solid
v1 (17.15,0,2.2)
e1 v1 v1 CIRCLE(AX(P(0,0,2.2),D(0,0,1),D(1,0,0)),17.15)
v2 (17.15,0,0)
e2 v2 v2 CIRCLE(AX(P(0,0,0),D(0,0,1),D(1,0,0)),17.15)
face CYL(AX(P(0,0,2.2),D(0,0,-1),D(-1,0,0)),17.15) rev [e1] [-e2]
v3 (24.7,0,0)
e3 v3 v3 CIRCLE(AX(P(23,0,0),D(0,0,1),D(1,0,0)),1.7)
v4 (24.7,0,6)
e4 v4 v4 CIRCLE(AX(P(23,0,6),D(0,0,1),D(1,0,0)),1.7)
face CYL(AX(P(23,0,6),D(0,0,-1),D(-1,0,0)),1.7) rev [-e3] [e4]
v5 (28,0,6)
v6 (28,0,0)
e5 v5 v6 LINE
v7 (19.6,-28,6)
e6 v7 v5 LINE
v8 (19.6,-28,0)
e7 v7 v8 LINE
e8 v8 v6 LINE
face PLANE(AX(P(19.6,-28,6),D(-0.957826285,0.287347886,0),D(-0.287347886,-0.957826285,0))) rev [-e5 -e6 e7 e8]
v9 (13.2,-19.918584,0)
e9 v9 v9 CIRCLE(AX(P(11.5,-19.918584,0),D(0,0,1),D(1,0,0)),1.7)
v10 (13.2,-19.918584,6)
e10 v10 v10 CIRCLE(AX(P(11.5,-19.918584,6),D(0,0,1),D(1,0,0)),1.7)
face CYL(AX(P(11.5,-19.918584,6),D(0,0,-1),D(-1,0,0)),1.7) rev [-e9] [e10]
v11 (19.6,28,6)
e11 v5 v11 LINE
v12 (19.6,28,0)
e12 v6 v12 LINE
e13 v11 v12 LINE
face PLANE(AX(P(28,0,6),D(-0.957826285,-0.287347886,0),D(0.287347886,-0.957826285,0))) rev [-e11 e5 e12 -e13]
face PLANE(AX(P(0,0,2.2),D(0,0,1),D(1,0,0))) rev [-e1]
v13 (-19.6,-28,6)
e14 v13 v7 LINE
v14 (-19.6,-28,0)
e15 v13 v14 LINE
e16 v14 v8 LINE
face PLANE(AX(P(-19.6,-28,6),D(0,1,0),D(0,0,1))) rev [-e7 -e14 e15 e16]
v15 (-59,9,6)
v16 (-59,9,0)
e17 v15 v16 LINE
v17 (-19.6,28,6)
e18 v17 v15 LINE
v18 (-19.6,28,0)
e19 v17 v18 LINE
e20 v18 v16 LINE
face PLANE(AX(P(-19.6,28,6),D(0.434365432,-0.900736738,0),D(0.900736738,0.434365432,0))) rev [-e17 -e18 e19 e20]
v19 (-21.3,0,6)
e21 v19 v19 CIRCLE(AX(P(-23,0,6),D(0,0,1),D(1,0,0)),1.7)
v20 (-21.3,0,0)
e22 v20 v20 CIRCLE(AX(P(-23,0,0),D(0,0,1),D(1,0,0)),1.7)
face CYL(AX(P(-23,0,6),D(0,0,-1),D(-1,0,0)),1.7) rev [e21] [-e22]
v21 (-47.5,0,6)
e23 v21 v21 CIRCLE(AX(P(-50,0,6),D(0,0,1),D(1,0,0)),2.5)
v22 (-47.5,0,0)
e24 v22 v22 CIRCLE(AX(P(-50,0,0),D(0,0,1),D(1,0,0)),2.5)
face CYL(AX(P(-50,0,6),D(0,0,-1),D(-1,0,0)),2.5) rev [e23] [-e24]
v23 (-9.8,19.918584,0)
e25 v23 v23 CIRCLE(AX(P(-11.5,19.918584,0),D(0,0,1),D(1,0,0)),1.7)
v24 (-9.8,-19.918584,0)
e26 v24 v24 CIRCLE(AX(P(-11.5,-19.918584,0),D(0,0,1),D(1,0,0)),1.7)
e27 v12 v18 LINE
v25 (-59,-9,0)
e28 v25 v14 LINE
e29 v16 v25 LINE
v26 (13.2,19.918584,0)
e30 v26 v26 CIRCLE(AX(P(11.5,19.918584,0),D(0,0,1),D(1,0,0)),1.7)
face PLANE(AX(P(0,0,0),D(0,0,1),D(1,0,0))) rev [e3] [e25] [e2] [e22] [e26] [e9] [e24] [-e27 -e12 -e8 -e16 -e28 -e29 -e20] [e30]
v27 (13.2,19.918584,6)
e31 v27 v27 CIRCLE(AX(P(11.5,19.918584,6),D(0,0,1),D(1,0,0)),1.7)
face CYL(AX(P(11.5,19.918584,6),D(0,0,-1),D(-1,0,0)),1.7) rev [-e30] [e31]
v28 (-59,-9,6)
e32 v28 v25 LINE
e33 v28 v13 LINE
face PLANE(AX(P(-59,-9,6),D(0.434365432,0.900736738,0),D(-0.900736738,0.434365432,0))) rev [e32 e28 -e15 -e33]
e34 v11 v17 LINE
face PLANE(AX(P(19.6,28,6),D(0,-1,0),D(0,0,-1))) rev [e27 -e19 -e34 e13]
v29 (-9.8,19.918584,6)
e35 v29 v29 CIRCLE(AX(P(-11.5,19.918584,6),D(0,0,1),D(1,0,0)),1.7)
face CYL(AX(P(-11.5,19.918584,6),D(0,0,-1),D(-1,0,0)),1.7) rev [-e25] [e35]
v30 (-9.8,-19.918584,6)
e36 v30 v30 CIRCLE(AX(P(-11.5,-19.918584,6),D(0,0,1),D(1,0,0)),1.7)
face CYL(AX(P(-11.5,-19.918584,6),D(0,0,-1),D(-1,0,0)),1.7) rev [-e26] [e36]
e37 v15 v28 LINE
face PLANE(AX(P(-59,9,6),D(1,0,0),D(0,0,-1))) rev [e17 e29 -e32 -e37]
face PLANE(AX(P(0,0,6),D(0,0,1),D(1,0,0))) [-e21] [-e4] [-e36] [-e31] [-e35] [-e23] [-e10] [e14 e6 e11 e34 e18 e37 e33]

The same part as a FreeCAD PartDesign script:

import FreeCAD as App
import Part
import Sketcher
from FreeCAD import Vector
Q = App.Units.Quantity

doc = App.newDocument("Part")
body = doc.addObject("PartDesign::Body", "Body")

# Sketch on XY plane
sketch1 = body.newObject("Sketcher::SketchObject", "Sketch")
sketch1.AttachmentSupport = (doc.getObject("XY_Plane"), [""])
sketch1.MapMode = "FlatFace"
sketch1.addGeometry(Part.LineSegment(Vector(-59, -9, 0), Vector(-19.6, -28, 0)), False)
sketch1.addGeometry(Part.LineSegment(Vector(-19.6, -28, 0), Vector(19.6, -28, 0)), False)
sketch1.addGeometry(Part.LineSegment(Vector(19.6, -28, 0), Vector(28, 0, 0)), False)
sketch1.addGeometry(Part.LineSegment(Vector(28, 0, 0), Vector(19.6, 28, 0)), False)
sketch1.addGeometry(Part.LineSegment(Vector(19.6, 28, 0), Vector(-19.6, 28, 0)), False)
sketch1.addGeometry(Part.LineSegment(Vector(-19.6, 28, 0), Vector(-59, 9, 0)), False)
sketch1.addGeometry(Part.LineSegment(Vector(-59, 9, 0), Vector(-59, -9, 0)), False)
sketch1.addGeometry(Part.Circle(Vector(-11.5, -19.9, 0), Vector(0, 0, 1), 1.7), False)
sketch1.addGeometry(Part.Circle(Vector(11.5, -19.9, 0), Vector(0, 0, 1), 1.7), False)
sketch1.addGeometry(Part.Circle(Vector(-50, 0, 0), Vector(0, 0, 1), 2.5), False)
sketch1.addGeometry(Part.Circle(Vector(-23, 0, 0), Vector(0, 0, 1), 1.7), False)
sketch1.addGeometry(Part.Circle(Vector(23, 0, 0), Vector(0, 0, 1), 1.7), False)
sketch1.addGeometry(Part.Circle(Vector(-11.5, 19.9, 0), Vector(0, 0, 1), 1.7), False)
sketch1.addGeometry(Part.Circle(Vector(11.5, 19.9, 0), Vector(0, 0, 1), 1.7), False)
sketch1.addConstraint(Sketcher.Constraint("Coincident", 0, 2, 1, 1))
sketch1.addConstraint(Sketcher.Constraint("Coincident", 1, 2, 2, 1))
sketch1.addConstraint(Sketcher.Constraint("Coincident", 2, 2, 3, 1))
sketch1.addConstraint(Sketcher.Constraint("Coincident", 3, 2, 4, 1))
sketch1.addConstraint(Sketcher.Constraint("Coincident", 4, 2, 5, 1))
sketch1.addConstraint(Sketcher.Constraint("Coincident", 5, 2, 6, 1))
sketch1.addConstraint(Sketcher.Constraint("Coincident", 6, 2, 0, 1))
sketch1.addConstraint(Sketcher.Constraint("Horizontal", 1))
sketch1.addConstraint(Sketcher.Constraint("Horizontal", 4))
sketch1.addConstraint(Sketcher.Constraint("Vertical", 6))
sketch1.addConstraint(Sketcher.Constraint("Equal", 7, 8))
sketch1.addConstraint(Sketcher.Constraint("Equal", 8, 10))
sketch1.addConstraint(Sketcher.Constraint("Equal", 10, 11))
sketch1.addConstraint(Sketcher.Constraint("Equal", 11, 12))
sketch1.addConstraint(Sketcher.Constraint("Equal", 12, 13))
sketch1.addConstraint(Sketcher.Constraint("Symmetric", 10, 3, 11, 3, -1, 1))
sketch1.addConstraint(Sketcher.Constraint("Symmetric", 8, 3, 12, 3, -1, 1))
sketch1.addConstraint(Sketcher.Constraint("Symmetric", 7, 3, 13, 3, -1, 1))
sketch1.addConstraint(Sketcher.Constraint("Symmetric", 0, 2, 3, 2, -1, 1))
sketch1.addConstraint(Sketcher.Constraint("Symmetric", 7, 3, 8, 3, -2))
sketch1.addConstraint(Sketcher.Constraint("PointOnObject", 9, 3, -1))
sketch1.addConstraint(Sketcher.Constraint("PointOnObject", 10, 3, -1))
sketch1.addConstraint(Sketcher.Constraint("PointOnObject", 2, 2, -1))
sketch1.addConstraint(Sketcher.Constraint("Vertical", 1, 2, 3, 2))
sketch1.addConstraint(Sketcher.Constraint("Vertical", 0, 2, 4, 2))
sketch1.addConstraint(Sketcher.Constraint("Equal", 0, 5))
sketch1.addConstraint(Sketcher.Constraint("Diameter", 9, Q("5 mm")))
sketch1.addConstraint(Sketcher.Constraint("Diameter", 7, Q("3.4 mm")))
sketch1.addConstraint(Sketcher.Constraint("DistanceY", 6, 2, 6, 1, Q("18 mm")))
sketch1.addConstraint(Sketcher.Constraint("DistanceX", 1, 1, 1, 2, Q("39.2 mm")))
sketch1.addConstraint(Sketcher.Constraint("DistanceX", 9, 3, -1, 1, Q("50 mm")))
sketch1.addConstraint(Sketcher.Constraint("DistanceX", 10, 3, -1, 1, Q("23 mm")))
sketch1.addConstraint(Sketcher.Constraint("DistanceY", 0, 2, -1, 1, Q("28 mm")))
sketch1.addConstraint(Sketcher.Constraint("DistanceX", -1, 1, 2, 2, Q("28 mm")))
sketch1.addConstraint(Sketcher.Constraint("DistanceX", 5, 2, -1, 1, Q("59 mm")))
sketch1.addConstraint(Sketcher.Constraint("DistanceX", 7, 3, 8, 3, Q("23 mm")))
sketch1.addConstraint(Sketcher.Constraint("DistanceY", 7, 3, 12, 3, Q("39.837169 mm")))
pad1 = body.newObject("PartDesign::Pad", "Pad")
pad1.Profile = sketch1
pad1.Length = 6

# Sketch on XY plane
sketch2 = body.newObject("Sketcher::SketchObject", "Sketch001")
sketch2.AttachmentSupport = (doc.getObject("XY_Plane"), [""])
sketch2.MapMode = "FlatFace"
sketch2.addGeometry(Part.Circle(Vector(0, 0, 0), Vector(0, 0, 1), 17), False)
sketch2.addConstraint(Sketcher.Constraint("Coincident", 0, 3, -1, 1))
sketch2.addConstraint(Sketcher.Constraint("Diameter", 0, Q("34.3 mm")))
pocket1 = body.newObject("PartDesign::Pocket", "Pocket")
pocket1.Profile = sketch2
pocket1.Length = 2.2
pocket1.Reversed = True

doc.recompute()
